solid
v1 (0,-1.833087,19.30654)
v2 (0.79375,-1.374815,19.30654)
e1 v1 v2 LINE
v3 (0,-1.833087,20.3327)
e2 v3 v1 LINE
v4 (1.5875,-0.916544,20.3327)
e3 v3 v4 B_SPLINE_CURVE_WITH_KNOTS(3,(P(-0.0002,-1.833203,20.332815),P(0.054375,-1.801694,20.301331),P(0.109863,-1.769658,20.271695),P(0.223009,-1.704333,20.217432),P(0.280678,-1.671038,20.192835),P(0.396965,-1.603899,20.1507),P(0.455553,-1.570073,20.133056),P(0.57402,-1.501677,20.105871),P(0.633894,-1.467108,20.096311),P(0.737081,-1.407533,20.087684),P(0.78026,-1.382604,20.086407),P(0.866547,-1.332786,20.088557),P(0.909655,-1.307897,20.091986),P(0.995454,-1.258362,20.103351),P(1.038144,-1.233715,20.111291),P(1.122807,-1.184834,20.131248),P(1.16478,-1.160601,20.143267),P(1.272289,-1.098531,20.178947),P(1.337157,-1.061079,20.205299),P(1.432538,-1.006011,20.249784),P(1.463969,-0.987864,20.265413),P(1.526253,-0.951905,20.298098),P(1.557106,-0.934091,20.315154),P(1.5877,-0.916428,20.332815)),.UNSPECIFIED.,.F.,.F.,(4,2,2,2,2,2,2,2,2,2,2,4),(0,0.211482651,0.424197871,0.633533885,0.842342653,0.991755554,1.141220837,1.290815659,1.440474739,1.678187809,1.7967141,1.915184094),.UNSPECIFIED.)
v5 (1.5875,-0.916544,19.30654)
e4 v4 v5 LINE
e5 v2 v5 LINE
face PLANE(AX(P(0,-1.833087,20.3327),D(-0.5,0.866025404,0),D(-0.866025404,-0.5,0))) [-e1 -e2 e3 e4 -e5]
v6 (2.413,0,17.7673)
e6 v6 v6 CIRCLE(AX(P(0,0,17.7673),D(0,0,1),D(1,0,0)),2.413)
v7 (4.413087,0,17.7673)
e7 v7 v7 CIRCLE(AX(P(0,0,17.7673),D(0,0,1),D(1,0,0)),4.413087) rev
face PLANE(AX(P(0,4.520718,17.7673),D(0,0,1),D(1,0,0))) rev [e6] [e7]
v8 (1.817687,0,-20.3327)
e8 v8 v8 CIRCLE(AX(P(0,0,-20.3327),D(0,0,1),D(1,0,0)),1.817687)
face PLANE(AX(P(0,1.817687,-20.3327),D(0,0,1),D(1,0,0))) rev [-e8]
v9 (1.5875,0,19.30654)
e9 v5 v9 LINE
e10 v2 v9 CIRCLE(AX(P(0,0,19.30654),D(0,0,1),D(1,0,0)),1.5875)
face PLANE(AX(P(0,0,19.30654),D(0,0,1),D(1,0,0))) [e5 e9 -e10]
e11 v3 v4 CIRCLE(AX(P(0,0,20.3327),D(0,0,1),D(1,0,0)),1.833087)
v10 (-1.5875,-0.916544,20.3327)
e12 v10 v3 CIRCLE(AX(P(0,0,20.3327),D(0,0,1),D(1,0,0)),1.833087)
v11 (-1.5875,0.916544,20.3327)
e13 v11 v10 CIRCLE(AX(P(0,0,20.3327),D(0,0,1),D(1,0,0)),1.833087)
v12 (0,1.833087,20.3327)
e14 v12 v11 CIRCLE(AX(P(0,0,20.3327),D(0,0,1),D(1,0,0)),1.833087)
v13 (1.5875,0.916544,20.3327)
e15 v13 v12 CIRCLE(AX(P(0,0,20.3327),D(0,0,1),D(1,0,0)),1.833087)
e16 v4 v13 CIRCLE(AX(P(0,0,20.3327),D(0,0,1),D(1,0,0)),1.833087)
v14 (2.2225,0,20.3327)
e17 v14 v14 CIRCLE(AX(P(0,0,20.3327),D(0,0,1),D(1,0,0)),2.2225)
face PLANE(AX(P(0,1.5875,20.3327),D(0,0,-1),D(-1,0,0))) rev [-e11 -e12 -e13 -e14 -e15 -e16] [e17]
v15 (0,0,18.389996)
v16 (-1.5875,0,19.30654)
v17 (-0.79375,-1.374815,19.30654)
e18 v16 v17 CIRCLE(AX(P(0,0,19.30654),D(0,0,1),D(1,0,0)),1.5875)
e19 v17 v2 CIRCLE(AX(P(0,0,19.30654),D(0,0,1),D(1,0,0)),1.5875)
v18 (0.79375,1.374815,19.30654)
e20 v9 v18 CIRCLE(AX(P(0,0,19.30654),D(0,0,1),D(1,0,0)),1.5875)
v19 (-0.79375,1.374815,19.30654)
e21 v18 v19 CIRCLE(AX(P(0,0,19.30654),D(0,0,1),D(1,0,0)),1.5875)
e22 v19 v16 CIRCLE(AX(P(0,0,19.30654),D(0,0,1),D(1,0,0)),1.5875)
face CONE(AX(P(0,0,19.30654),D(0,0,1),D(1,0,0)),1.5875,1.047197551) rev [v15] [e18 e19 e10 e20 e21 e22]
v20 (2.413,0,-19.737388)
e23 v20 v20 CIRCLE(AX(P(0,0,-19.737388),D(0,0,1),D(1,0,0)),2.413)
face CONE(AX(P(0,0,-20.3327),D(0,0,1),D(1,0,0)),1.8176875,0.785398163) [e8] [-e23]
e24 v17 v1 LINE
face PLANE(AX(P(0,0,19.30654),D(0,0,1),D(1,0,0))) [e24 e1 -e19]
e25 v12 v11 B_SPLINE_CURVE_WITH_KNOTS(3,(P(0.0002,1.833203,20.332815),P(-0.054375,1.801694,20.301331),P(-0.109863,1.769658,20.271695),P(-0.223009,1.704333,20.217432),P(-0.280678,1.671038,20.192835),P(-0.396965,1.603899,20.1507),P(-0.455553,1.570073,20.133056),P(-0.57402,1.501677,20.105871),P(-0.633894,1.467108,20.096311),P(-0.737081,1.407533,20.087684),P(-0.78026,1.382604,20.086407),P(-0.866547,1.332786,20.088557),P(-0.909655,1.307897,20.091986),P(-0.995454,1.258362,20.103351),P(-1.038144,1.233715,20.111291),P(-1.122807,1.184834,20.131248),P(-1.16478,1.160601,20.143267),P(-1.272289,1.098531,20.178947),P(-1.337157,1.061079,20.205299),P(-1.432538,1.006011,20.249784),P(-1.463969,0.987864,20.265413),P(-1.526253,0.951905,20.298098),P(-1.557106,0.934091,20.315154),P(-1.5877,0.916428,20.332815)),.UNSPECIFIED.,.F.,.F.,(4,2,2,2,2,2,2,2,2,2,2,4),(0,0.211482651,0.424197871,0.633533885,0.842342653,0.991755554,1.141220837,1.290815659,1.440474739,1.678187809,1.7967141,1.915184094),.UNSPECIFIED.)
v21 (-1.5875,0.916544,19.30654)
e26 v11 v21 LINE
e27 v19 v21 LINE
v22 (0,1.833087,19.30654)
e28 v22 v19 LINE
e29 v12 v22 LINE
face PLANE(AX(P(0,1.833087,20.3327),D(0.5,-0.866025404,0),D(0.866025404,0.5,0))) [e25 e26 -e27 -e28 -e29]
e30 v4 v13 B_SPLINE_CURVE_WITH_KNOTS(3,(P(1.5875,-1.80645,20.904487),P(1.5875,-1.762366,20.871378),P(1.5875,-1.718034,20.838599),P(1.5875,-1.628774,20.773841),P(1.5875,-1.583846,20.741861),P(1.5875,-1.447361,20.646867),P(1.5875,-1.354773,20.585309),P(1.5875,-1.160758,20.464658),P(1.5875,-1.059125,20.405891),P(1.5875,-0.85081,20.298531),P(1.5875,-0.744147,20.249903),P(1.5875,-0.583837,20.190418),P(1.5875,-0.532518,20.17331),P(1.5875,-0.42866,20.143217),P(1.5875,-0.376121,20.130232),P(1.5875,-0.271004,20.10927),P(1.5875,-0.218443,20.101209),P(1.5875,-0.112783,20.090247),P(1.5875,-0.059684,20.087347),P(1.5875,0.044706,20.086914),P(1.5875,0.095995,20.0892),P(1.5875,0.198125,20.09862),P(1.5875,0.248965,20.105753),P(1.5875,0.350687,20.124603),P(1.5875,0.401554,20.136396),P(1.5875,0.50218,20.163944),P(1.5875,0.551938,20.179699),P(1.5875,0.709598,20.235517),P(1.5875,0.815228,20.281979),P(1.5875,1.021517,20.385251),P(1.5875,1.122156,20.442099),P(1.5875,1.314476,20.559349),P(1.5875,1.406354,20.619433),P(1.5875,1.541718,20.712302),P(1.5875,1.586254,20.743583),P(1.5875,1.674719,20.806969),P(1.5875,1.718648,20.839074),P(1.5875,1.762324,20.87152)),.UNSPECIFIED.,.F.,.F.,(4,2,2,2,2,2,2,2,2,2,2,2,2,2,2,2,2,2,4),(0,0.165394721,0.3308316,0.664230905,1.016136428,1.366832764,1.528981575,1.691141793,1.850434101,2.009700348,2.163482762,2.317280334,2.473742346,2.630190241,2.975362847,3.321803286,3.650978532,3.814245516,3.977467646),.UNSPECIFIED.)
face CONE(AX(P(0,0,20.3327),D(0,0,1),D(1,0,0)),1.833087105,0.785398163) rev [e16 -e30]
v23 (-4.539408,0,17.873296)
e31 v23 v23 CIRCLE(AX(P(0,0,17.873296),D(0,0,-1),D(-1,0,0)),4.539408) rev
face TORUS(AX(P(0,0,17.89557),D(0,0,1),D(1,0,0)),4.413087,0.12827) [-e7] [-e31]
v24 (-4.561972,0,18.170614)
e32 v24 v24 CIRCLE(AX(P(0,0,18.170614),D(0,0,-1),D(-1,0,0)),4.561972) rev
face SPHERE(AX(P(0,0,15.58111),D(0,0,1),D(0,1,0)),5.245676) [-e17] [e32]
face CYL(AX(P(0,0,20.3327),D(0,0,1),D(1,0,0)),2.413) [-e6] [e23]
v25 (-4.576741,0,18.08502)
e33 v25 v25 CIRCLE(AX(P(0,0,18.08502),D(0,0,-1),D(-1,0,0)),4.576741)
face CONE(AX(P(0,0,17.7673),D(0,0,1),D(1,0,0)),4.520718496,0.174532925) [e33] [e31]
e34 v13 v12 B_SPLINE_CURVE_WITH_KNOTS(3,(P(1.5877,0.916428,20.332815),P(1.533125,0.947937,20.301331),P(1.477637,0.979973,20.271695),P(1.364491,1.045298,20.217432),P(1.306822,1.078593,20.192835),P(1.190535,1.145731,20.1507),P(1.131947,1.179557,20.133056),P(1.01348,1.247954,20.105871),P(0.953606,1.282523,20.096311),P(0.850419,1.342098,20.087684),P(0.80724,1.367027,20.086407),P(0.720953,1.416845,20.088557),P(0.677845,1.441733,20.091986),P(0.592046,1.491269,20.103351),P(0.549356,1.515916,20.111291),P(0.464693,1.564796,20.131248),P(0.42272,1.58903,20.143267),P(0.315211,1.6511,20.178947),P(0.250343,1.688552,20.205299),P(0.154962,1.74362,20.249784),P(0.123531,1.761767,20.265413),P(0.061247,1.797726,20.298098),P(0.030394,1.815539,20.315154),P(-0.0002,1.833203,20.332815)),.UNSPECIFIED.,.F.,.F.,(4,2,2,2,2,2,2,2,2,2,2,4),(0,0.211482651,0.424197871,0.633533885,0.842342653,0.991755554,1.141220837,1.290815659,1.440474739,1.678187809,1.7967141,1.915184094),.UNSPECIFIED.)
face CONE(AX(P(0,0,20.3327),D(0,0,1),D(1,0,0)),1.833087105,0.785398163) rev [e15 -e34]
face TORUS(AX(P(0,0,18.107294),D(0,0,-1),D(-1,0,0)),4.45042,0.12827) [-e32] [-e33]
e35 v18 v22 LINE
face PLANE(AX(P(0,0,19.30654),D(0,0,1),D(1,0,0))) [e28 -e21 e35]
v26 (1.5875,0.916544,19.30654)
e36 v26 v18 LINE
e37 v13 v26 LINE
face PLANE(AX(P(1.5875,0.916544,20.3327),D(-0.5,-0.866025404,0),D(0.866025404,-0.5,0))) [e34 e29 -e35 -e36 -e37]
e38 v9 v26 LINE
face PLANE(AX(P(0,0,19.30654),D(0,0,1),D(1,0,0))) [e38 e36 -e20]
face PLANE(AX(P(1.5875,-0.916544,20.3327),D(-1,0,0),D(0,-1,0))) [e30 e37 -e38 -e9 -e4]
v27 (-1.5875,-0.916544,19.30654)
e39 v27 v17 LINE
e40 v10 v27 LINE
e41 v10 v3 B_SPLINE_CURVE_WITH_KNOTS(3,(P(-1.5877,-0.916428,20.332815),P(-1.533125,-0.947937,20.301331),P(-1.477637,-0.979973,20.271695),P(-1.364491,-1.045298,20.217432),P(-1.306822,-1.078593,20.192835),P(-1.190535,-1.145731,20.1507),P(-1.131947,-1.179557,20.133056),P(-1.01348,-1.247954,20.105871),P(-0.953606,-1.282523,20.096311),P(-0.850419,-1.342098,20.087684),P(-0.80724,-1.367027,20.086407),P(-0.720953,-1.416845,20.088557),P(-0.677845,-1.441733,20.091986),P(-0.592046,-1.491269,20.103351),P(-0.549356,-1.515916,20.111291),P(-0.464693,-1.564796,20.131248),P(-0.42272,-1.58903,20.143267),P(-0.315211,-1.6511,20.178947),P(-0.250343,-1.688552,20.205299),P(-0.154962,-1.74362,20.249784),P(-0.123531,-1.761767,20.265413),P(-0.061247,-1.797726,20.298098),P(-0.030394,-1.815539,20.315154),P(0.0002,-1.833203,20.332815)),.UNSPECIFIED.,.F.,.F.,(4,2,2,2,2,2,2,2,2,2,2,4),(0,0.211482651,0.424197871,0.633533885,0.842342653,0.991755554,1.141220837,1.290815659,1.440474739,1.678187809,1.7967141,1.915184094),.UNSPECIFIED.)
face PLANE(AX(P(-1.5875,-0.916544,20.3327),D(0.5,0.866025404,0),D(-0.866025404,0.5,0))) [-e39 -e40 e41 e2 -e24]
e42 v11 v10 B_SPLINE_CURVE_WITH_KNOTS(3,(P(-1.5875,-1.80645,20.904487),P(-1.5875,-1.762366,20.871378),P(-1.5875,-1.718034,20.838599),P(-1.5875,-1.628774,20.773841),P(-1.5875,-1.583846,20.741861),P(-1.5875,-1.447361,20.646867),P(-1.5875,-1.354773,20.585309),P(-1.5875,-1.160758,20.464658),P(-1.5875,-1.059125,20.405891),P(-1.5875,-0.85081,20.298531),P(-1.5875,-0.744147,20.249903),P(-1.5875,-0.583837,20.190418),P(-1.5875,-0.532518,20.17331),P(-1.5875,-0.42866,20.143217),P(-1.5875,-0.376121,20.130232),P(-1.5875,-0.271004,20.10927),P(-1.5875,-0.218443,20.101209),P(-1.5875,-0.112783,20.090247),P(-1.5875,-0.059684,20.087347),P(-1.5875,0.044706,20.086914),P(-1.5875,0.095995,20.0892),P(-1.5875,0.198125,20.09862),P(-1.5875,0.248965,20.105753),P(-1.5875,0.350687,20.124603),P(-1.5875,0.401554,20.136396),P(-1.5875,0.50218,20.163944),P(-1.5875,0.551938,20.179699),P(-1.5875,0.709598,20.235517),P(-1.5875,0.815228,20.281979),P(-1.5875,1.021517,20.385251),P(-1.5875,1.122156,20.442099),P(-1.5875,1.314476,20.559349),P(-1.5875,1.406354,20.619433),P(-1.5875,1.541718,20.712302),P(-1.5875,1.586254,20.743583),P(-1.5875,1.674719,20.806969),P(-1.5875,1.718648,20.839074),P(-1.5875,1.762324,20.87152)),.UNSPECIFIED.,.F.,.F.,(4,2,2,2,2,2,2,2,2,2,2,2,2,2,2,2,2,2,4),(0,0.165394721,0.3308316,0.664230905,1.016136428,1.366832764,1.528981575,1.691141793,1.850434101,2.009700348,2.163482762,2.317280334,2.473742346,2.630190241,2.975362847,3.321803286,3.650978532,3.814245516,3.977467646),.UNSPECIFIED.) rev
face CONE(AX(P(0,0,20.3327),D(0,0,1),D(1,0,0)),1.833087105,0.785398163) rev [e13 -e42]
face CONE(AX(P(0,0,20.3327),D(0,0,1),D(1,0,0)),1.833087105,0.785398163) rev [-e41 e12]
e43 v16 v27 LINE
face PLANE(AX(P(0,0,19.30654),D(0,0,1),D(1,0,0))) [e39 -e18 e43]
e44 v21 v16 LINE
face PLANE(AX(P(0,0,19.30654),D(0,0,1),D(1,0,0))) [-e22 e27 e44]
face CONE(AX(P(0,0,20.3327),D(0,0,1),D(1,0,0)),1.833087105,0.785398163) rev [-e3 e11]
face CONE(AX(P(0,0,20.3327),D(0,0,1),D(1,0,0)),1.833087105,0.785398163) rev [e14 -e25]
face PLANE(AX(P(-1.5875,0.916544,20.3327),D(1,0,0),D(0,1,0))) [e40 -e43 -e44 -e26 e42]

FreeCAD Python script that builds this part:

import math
import FreeCAD as App
import Part
import Sketcher
Q = App.Units.Quantity


def edges_at(feature, points):
    """Names of the edges that pass closest to the given points."""
    edges = feature.Shape.Edges
    near = lambda p: min(range(len(edges)), key=lambda i: edges[i].distToShape(Part.Vertex(*p))[0])
    return sorted({f"Edge{near(p) + 1}" for p in points})


def faces_at(feature, points):
    """Names of the faces that lie closest to the given points."""
    faces = feature.Shape.Faces
    near = lambda p: min(range(len(faces)), key=lambda i: faces[i].distToShape(Part.Vertex(*p))[0])
    return sorted({f"Face{near(p) + 1}" for p in points})

doc = App.newDocument("Part")
body = doc.addObject("PartDesign::Body", "Body")

sketch1 = body.newObject("Sketcher::SketchObject", "Sketch")
sketch1.AttachmentSupport = (doc.getObject("YZ_Plane"), [""])
sketch1.MapMode = "FlatFace"
sketch1.addGeometry([
    Part.LineSegment(App.Vector(2.22, 20.33, 0), App.Vector(1.59, 20.33, 0)),
    Part.LineSegment(App.Vector(1.59, 20.33, 0), App.Vector(1.59, 19.31, 0)),
    Part.LineSegment(App.Vector(1.59, 19.31, 0), App.Vector(0, 18.39, 0)),
    Part.LineSegment(App.Vector(0, 18.39, 0), App.Vector(0, -20.33, 0)),
    Part.LineSegment(App.Vector(0, -20.33, 0), App.Vector(1.82, -20.33, 0)),
    Part.LineSegment(App.Vector(1.82, -20.33, 0), App.Vector(2.41, -19.74, 0)),
    Part.LineSegment(App.Vector(2.41, -19.74, 0), App.Vector(2.41, 17.77, 0)),
    Part.LineSegment(App.Vector(2.41, 17.77, 0), App.Vector(4.52, 17.77, 0)),
    Part.LineSegment(App.Vector(4.52, 17.77, 0), App.Vector(4.58, 18.13, 0)),
    Part.ArcOfCircle(Part.Circle(App.Vector(0, 15.58, 0), App.Vector(0, 0, 1), 5.25), math.radians(29), math.radians(65)),
], False)
sketch1.addConstraint([
    Sketcher.Constraint("Coincident", 0, 2, 1, 1),
    Sketcher.Constraint("Coincident", 1, 2, 2, 1),
    Sketcher.Constraint("Coincident", 2, 2, 3, 1),
    Sketcher.Constraint("Coincident", 3, 2, 4, 1),
    Sketcher.Constraint("Coincident", 4, 2, 5, 1),
    Sketcher.Constraint("Coincident", 5, 2, 6, 1),
    Sketcher.Constraint("Coincident", 6, 2, 7, 1),
    Sketcher.Constraint("Coincident", 7, 2, 8, 1),
    Sketcher.Constraint("Coincident", 8, 2, 9, 1),
    Sketcher.Constraint("Coincident", 9, 2, 0, 1),
    Sketcher.Constraint("Horizontal", 0),
    Sketcher.Constraint("Vertical", 1),
    Sketcher.Constraint("Vertical", 3),
    Sketcher.Constraint("Horizontal", 4),
    Sketcher.Constraint("Vertical", 6),
    Sketcher.Constraint("Horizontal", 7),
    Sketcher.Constraint("PointOnObject", 9, 3, -2),
    Sketcher.Constraint("PointOnObject", 2, 2, -2),
    Sketcher.Constraint("Angle", 2, Q("-150 deg")),
    Sketcher.Constraint("Angle", 5, Q("45 deg")),
    Sketcher.Constraint("Angle", 8, Q("80 deg")),
    Sketcher.Constraint("DistanceX", 0, 2, 0, 1, Q("0.025 in")),
    Sketcher.Constraint("DistanceY", 1, 2, 1, 1, Q("0.0404 in")),
    Sketcher.Constraint("DistanceX", -1, 1, 0, 2, Q("0.0625 in")),
    Sketcher.Constraint("DistanceX", -1, 1, 5, 2, Q("0.095 in")),
    Sketcher.Constraint("DistanceY", 3, 2, 0, 2, Q("1.601 in")),
    Sketcher.Constraint("DistanceY", 6, 2, 0, 2, Q("0.101 in")),
    Sketcher.Constraint("DistanceX", 1, 2, 8, 2, Q("0.118 in")),
    Sketcher.Constraint("DistanceY", -1, 1, 0, 2, Q("0.8005 in")),
    Sketcher.Constraint("Radius", 9, 5.245676),
    Sketcher.Constraint("Distance", 5, 0.841899),
])
revolution = body.newObject("PartDesign::Revolution", "Revolution")
revolution.Profile = sketch1
revolution.ReferenceAxis = (sketch1, ["V_Axis"])
revolution.Angle = 360

sketch2 = body.newObject("Sketcher::SketchObject", "Sketch001")
sketch2.AttachmentSupport = (doc.getObject("XY_Plane"), [""])
sketch2.MapMode = "FlatFace"
sketch2.AttachmentOffset = App.Placement(App.Vector(0, 0, 0.7601 * 25.4), App.Rotation())
sketch2.addGeometry([
    Part.LineSegment(App.Vector(0, 1.8, 0), App.Vector(-1.6, 0.9, 0)),
    Part.LineSegment(App.Vector(-1.6, 0.9, 0), App.Vector(-1.6, -0.9, 0)),
    Part.LineSegment(App.Vector(-1.6, -0.9, 0), App.Vector(0, -1.8, 0)),
    Part.LineSegment(App.Vector(0, -1.8, 0), App.Vector(1.6, -0.9, 0)),
    Part.LineSegment(App.Vector(1.6, -0.9, 0), App.Vector(1.6, 0.9, 0)),
    Part.LineSegment(App.Vector(1.6, 0.9, 0), App.Vector(0, 1.8, 0)),
], False)
sketch2.addConstraint([
    Sketcher.Constraint("Coincident", 0, 2, 1, 1),
    Sketcher.Constraint("Coincident", 1, 2, 2, 1),
    Sketcher.Constraint("Coincident", 2, 2, 3, 1),
    Sketcher.Constraint("Coincident", 3, 2, 4, 1),
    Sketcher.Constraint("Coincident", 4, 2, 5, 1),
    Sketcher.Constraint("Coincident", 5, 2, 0, 1),
    Sketcher.Constraint("Vertical", 1),
    Sketcher.Constraint("Vertical", 4),
    Sketcher.Constraint("Symmetric", 0, 2, 3, 2, -1, 1),
    Sketcher.Constraint("Symmetric", 2, 2, 5, 2, -1, 1),
    Sketcher.Constraint("PointOnObject", 2, 2, -2),
    Sketcher.Constraint("Parallel", 2, 5),
    Sketcher.Constraint("Horizontal", 1, 2, 3, 2),
    Sketcher.Constraint("Angle", 0, Q("-150 deg")),
    Sketcher.Constraint("DistanceX", 0, 2, -1, 1, Q("0.0625 in")),
    Sketcher.Constraint("DistanceY", 1, 2, 1, 1, 1.833087),
])
pocket1 = body.newObject("PartDesign::Pocket", "Pocket")
pocket1.Profile = sketch2
pocket1.Type = "ThroughAll"
pocket1.Reversed = True
body2 = doc.addObject("PartDesign::Body", "Body001")

sketch3 = body2.newObject("Sketcher::SketchObject", "Sketch002")
sketch3.AttachmentSupport = (doc.getObject("XY_Plane001"), [""])
sketch3.MapMode = "FlatFace"
sketch3.AttachmentOffset = App.Placement(App.Vector(0, 0, 0.8005 * 25.4), App.Rotation())
sketch3.addGeometry(Part.Circle(App.Vector(0, 0, 0), App.Vector(0, 0, 1), 1.8), False)
sketch3.addConstraint([
    Sketcher.Constraint("Coincident", 0, 3, -1, 1),
    Sketcher.Constraint("Diameter", 0, 3.666174),
])
pad1 = body2.newObject("PartDesign::Pad", "Pad")
pad1.Profile = sketch3
pad1.Length = Q("0.0404 in")
pad1.Reversed = True
doc.recompute()

datumplane = body2.newObject("PartDesign::Plane", "DatumPlane")
datumplane.AttachmentSupport = (doc.getObject("XY_Plane001"), [""])
datumplane.MapMode = "FlatFace"
datumplane.AttachmentOffset = App.Placement(App.Vector(0, 0, 0.8005 * 25.4), App.Rotation())
draft = body2.newObject("PartDesign::Draft", "Draft")
draft.Base = (pad1, faces_at(pad1, [(-1.833, 0, 19.82)]))
draft.NeutralPlane = (datumplane, [""])
draft.Angle = 45
draft.Reversed = True
doc.recompute()

boolean = body.newObject("PartDesign::Boolean", "Boolean")
boolean.Type = "Cut"
boolean.addObjects([body2])
doc.recompute()

fillet = body.newObject("PartDesign::Fillet", "Fillet")
fillet.Base = (boolean, edges_at(boolean, [(0, -4.521, 17.767), (0, -4.585, 18.13)]))
fillet.Radius = 0.12827

doc.recompute()
